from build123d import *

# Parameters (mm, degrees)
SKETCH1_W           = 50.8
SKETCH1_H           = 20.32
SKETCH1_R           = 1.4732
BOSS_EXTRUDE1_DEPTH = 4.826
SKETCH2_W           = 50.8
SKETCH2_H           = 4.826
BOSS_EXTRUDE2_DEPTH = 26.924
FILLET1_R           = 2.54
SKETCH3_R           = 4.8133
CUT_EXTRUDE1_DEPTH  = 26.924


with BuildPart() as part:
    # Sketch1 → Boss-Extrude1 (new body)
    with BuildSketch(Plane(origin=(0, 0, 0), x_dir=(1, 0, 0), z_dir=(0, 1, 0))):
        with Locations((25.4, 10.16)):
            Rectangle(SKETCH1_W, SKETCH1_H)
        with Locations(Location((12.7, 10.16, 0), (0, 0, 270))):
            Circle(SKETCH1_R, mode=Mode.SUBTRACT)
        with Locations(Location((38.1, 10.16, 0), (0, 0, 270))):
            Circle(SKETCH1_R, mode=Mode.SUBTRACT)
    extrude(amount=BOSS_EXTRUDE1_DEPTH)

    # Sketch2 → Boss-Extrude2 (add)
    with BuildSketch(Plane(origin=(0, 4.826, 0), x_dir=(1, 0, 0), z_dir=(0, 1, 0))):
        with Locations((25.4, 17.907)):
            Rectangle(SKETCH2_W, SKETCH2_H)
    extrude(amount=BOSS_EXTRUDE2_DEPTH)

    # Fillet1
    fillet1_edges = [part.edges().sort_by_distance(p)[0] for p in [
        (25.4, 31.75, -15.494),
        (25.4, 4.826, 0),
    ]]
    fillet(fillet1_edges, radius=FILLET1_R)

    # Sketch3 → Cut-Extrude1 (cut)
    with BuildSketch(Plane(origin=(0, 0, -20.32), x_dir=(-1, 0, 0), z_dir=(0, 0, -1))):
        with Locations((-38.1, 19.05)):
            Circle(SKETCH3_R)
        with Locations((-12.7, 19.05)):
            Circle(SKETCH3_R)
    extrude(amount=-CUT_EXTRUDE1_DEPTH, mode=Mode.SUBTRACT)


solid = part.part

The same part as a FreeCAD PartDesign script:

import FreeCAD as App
import Part
import Sketcher

V = App.Vector
Q = App.Units.Quantity


def edges_at(feature, points):
    """Names of the edges that pass closest to the given points."""
    edges = feature.Shape.Edges
    near = lambda p: min(range(len(edges)), key=lambda i: edges[i].distToShape(Part.Vertex(*p))[0])
    return sorted({f"Edge{near(p) + 1}" for p in points})

doc = App.newDocument("Part")
body = doc.addObject("PartDesign::Body", "Body")

sketch1 = body.newObject("Sketcher::SketchObject", "Sketch")
sketch1.AttachmentSupport = (doc.getObject("XZ_Plane"), [""])
sketch1.MapMode = "FlatFace"
sketch1.addGeometry(Part.LineSegment(V(0, -20.3, 0), V(0, 0, 0)), False)
sketch1.addGeometry(Part.LineSegment(V(0, 0, 0), V(50.8, 0, 0)), False)
sketch1.addGeometry(Part.LineSegment(V(50.8, 0, 0), V(50.8, -20.3, 0)), False)
sketch1.addGeometry(Part.LineSegment(V(50.8, -20.3, 0), V(0, -20.3, 0)), False)
sketch1.addGeometry(Part.Circle(V(12.7, -10.2, 0), V(0, 0, 1), 1.5), False)
sketch1.addGeometry(Part.Circle(V(38.1, -10.2, 0), V(0, 0, 1), 1.5), False)
sketch1.addConstraint(Sketcher.Constraint("Coincident", 0, 2, 1, 1))
sketch1.addConstraint(Sketcher.Constraint("Coincident", 1, 2, 2, 1))
sketch1.addConstraint(Sketcher.Constraint("Coincident", 2, 2, 3, 1))
sketch1.addConstraint(Sketcher.Constraint("Coincident", 3, 2, 0, 1))
sketch1.addConstraint(Sketcher.Constraint("Vertical", 0))
sketch1.addConstraint(Sketcher.Constraint("Horizontal", 1))
sketch1.addConstraint(Sketcher.Constraint("Vertical", 2))
sketch1.addConstraint(Sketcher.Constraint("Horizontal", 3))
sketch1.addConstraint(Sketcher.Constraint("Coincident", 0, 2, -1, 1))
sketch1.addConstraint(Sketcher.Constraint("Equal", 4, 5))
sketch1.addConstraint(Sketcher.Constraint("Horizontal", 4, 3, 5, 3))
sketch1.addConstraint(Sketcher.Constraint("DistanceX", 1, 1, 1, 2, Q("2 in")))
sketch1.addConstraint(Sketcher.Constraint("Diameter", 4, Q("0.116 in")))
sketch1.addConstraint(Sketcher.Constraint("DistanceY", 0, 1, 0, 2, Q("0.8 in")))
sketch1.addConstraint(Sketcher.Constraint("DistanceX", 4, 3, 5, 3, Q("1 in")))
sketch1.addConstraint(Sketcher.Constraint("DistanceX", -1, 1, 4, 3, Q("0.5 in")))
sketch1.addConstraint(Sketcher.Constraint("DistanceY", 4, 3, -1, 1, Q("0.4 in")))
pad1 = body.newObject("PartDesign::Pad", "Pad")
pad1.Profile = sketch1
pad1.Length = Q("0.19 in")
pad1.Reversed = True

sketch2 = body.newObject("Sketcher::SketchObject", "Sketch001")
sketch2.AttachmentSupport = (doc.getObject("XZ_Plane"), [""])
sketch2.MapMode = "FlatFace"
sketch2.AttachmentOffset = App.Placement(V(0, 0, -0.19 * 25.4), App.Rotation())
sketch2.addGeometry(Part.LineSegment(V(0, -20.3, 0), V(0, -15.5, 0)), False)
sketch2.addGeometry(Part.LineSegment(V(0, -15.5, 0), V(50.8, -15.5, 0)), False)
sketch2.addGeometry(Part.LineSegment(V(50.8, -15.5, 0), V(50.8, -20.3, 0)), False)
sketch2.addGeometry(Part.LineSegment(V(50.8, -20.3, 0), V(0, -20.3, 0)), False)
sketch2.addConstraint(Sketcher.Constraint("Coincident", 0, 2, 1, 1))
sketch2.addConstraint(Sketcher.Constraint("Coincident", 1, 2, 2, 1))
sketch2.addConstraint(Sketcher.Constraint("Coincident", 2, 2, 3, 1))
sketch2.addConstraint(Sketcher.Constraint("Coincident", 3, 2, 0, 1))
sketch2.addConstraint(Sketcher.Constraint("Vertical", 0))
sketch2.addConstraint(Sketcher.Constraint("Horizontal", 1))
sketch2.addConstraint(Sketcher.Constraint("Vertical", 2))
sketch2.addConstraint(Sketcher.Constraint("Horizontal", 3))
sketch2.addConstraint(Sketcher.Constraint("PointOnObject", 0, 2, -2))
sketch2.addConstraint(Sketcher.Constraint("DistanceX", 1, 1, 1, 2, Q("2 in")))
sketch2.addConstraint(Sketcher.Constraint("DistanceY", 0, 1, 0, 2, Q("0.19 in")))
sketch2.addConstraint(Sketcher.Constraint("DistanceY", 2, 2, -1, 1, Q("0.8 in")))
pad2 = body.newObject("PartDesign::Pad", "Pad001")
pad2.Profile = sketch2
pad2.Length = Q("1.06 in")
pad2.Reversed = True
doc.recompute()

fillet = body.newObject("PartDesign::Fillet", "Fillet")
fillet.Base = (pad2, edges_at(pad2, [(25.4, 31.75, -15.494), (25.4, 4.826, 0)]))
fillet.Radius = Q("0.1 in")

sketch3 = body.newObject("Sketcher::SketchObject", "Sketch002")
sketch3.AttachmentSupport = (doc.getObject("XY_Plane"), [""])
sketch3.MapMode = "FlatFace"
sketch3.AttachmentOffset = App.Placement(V(0, 0, -0.8 * 25.4), App.Rotation())
sketch3.addGeometry(Part.Circle(V(38.1, 19.1, 0), V(0, 0, 1), 4.8), False)
sketch3.addGeometry(Part.Circle(V(12.7, 19.1, 0), V(0, 0, 1), 4.8), False)
sketch3.addConstraint(Sketcher.Constraint("Equal", 0, 1))
sketch3.addConstraint(Sketcher.Constraint("Horizontal", 0, 3, 1, 3))
sketch3.addConstraint(Sketcher.Constraint("Diameter", 0, Q("0.379 in")))
sketch3.addConstraint(Sketcher.Constraint("DistanceX", 1, 3, 0, 3, Q("1 in")))
sketch3.addConstraint(Sketcher.Constraint("DistanceX", -1, 1, 0, 3, Q("1.5 in")))
sketch3.addConstraint(Sketcher.Constraint("DistanceY", -1, 1, 0, 3, Q("0.75 in")))
pocket1 = body.newObject("PartDesign::Pocket", "Pocket")
pocket1.Profile = sketch3
pocket1.Length = Q("1.06 in")
pocket1.Reversed = True

doc.recompute()
